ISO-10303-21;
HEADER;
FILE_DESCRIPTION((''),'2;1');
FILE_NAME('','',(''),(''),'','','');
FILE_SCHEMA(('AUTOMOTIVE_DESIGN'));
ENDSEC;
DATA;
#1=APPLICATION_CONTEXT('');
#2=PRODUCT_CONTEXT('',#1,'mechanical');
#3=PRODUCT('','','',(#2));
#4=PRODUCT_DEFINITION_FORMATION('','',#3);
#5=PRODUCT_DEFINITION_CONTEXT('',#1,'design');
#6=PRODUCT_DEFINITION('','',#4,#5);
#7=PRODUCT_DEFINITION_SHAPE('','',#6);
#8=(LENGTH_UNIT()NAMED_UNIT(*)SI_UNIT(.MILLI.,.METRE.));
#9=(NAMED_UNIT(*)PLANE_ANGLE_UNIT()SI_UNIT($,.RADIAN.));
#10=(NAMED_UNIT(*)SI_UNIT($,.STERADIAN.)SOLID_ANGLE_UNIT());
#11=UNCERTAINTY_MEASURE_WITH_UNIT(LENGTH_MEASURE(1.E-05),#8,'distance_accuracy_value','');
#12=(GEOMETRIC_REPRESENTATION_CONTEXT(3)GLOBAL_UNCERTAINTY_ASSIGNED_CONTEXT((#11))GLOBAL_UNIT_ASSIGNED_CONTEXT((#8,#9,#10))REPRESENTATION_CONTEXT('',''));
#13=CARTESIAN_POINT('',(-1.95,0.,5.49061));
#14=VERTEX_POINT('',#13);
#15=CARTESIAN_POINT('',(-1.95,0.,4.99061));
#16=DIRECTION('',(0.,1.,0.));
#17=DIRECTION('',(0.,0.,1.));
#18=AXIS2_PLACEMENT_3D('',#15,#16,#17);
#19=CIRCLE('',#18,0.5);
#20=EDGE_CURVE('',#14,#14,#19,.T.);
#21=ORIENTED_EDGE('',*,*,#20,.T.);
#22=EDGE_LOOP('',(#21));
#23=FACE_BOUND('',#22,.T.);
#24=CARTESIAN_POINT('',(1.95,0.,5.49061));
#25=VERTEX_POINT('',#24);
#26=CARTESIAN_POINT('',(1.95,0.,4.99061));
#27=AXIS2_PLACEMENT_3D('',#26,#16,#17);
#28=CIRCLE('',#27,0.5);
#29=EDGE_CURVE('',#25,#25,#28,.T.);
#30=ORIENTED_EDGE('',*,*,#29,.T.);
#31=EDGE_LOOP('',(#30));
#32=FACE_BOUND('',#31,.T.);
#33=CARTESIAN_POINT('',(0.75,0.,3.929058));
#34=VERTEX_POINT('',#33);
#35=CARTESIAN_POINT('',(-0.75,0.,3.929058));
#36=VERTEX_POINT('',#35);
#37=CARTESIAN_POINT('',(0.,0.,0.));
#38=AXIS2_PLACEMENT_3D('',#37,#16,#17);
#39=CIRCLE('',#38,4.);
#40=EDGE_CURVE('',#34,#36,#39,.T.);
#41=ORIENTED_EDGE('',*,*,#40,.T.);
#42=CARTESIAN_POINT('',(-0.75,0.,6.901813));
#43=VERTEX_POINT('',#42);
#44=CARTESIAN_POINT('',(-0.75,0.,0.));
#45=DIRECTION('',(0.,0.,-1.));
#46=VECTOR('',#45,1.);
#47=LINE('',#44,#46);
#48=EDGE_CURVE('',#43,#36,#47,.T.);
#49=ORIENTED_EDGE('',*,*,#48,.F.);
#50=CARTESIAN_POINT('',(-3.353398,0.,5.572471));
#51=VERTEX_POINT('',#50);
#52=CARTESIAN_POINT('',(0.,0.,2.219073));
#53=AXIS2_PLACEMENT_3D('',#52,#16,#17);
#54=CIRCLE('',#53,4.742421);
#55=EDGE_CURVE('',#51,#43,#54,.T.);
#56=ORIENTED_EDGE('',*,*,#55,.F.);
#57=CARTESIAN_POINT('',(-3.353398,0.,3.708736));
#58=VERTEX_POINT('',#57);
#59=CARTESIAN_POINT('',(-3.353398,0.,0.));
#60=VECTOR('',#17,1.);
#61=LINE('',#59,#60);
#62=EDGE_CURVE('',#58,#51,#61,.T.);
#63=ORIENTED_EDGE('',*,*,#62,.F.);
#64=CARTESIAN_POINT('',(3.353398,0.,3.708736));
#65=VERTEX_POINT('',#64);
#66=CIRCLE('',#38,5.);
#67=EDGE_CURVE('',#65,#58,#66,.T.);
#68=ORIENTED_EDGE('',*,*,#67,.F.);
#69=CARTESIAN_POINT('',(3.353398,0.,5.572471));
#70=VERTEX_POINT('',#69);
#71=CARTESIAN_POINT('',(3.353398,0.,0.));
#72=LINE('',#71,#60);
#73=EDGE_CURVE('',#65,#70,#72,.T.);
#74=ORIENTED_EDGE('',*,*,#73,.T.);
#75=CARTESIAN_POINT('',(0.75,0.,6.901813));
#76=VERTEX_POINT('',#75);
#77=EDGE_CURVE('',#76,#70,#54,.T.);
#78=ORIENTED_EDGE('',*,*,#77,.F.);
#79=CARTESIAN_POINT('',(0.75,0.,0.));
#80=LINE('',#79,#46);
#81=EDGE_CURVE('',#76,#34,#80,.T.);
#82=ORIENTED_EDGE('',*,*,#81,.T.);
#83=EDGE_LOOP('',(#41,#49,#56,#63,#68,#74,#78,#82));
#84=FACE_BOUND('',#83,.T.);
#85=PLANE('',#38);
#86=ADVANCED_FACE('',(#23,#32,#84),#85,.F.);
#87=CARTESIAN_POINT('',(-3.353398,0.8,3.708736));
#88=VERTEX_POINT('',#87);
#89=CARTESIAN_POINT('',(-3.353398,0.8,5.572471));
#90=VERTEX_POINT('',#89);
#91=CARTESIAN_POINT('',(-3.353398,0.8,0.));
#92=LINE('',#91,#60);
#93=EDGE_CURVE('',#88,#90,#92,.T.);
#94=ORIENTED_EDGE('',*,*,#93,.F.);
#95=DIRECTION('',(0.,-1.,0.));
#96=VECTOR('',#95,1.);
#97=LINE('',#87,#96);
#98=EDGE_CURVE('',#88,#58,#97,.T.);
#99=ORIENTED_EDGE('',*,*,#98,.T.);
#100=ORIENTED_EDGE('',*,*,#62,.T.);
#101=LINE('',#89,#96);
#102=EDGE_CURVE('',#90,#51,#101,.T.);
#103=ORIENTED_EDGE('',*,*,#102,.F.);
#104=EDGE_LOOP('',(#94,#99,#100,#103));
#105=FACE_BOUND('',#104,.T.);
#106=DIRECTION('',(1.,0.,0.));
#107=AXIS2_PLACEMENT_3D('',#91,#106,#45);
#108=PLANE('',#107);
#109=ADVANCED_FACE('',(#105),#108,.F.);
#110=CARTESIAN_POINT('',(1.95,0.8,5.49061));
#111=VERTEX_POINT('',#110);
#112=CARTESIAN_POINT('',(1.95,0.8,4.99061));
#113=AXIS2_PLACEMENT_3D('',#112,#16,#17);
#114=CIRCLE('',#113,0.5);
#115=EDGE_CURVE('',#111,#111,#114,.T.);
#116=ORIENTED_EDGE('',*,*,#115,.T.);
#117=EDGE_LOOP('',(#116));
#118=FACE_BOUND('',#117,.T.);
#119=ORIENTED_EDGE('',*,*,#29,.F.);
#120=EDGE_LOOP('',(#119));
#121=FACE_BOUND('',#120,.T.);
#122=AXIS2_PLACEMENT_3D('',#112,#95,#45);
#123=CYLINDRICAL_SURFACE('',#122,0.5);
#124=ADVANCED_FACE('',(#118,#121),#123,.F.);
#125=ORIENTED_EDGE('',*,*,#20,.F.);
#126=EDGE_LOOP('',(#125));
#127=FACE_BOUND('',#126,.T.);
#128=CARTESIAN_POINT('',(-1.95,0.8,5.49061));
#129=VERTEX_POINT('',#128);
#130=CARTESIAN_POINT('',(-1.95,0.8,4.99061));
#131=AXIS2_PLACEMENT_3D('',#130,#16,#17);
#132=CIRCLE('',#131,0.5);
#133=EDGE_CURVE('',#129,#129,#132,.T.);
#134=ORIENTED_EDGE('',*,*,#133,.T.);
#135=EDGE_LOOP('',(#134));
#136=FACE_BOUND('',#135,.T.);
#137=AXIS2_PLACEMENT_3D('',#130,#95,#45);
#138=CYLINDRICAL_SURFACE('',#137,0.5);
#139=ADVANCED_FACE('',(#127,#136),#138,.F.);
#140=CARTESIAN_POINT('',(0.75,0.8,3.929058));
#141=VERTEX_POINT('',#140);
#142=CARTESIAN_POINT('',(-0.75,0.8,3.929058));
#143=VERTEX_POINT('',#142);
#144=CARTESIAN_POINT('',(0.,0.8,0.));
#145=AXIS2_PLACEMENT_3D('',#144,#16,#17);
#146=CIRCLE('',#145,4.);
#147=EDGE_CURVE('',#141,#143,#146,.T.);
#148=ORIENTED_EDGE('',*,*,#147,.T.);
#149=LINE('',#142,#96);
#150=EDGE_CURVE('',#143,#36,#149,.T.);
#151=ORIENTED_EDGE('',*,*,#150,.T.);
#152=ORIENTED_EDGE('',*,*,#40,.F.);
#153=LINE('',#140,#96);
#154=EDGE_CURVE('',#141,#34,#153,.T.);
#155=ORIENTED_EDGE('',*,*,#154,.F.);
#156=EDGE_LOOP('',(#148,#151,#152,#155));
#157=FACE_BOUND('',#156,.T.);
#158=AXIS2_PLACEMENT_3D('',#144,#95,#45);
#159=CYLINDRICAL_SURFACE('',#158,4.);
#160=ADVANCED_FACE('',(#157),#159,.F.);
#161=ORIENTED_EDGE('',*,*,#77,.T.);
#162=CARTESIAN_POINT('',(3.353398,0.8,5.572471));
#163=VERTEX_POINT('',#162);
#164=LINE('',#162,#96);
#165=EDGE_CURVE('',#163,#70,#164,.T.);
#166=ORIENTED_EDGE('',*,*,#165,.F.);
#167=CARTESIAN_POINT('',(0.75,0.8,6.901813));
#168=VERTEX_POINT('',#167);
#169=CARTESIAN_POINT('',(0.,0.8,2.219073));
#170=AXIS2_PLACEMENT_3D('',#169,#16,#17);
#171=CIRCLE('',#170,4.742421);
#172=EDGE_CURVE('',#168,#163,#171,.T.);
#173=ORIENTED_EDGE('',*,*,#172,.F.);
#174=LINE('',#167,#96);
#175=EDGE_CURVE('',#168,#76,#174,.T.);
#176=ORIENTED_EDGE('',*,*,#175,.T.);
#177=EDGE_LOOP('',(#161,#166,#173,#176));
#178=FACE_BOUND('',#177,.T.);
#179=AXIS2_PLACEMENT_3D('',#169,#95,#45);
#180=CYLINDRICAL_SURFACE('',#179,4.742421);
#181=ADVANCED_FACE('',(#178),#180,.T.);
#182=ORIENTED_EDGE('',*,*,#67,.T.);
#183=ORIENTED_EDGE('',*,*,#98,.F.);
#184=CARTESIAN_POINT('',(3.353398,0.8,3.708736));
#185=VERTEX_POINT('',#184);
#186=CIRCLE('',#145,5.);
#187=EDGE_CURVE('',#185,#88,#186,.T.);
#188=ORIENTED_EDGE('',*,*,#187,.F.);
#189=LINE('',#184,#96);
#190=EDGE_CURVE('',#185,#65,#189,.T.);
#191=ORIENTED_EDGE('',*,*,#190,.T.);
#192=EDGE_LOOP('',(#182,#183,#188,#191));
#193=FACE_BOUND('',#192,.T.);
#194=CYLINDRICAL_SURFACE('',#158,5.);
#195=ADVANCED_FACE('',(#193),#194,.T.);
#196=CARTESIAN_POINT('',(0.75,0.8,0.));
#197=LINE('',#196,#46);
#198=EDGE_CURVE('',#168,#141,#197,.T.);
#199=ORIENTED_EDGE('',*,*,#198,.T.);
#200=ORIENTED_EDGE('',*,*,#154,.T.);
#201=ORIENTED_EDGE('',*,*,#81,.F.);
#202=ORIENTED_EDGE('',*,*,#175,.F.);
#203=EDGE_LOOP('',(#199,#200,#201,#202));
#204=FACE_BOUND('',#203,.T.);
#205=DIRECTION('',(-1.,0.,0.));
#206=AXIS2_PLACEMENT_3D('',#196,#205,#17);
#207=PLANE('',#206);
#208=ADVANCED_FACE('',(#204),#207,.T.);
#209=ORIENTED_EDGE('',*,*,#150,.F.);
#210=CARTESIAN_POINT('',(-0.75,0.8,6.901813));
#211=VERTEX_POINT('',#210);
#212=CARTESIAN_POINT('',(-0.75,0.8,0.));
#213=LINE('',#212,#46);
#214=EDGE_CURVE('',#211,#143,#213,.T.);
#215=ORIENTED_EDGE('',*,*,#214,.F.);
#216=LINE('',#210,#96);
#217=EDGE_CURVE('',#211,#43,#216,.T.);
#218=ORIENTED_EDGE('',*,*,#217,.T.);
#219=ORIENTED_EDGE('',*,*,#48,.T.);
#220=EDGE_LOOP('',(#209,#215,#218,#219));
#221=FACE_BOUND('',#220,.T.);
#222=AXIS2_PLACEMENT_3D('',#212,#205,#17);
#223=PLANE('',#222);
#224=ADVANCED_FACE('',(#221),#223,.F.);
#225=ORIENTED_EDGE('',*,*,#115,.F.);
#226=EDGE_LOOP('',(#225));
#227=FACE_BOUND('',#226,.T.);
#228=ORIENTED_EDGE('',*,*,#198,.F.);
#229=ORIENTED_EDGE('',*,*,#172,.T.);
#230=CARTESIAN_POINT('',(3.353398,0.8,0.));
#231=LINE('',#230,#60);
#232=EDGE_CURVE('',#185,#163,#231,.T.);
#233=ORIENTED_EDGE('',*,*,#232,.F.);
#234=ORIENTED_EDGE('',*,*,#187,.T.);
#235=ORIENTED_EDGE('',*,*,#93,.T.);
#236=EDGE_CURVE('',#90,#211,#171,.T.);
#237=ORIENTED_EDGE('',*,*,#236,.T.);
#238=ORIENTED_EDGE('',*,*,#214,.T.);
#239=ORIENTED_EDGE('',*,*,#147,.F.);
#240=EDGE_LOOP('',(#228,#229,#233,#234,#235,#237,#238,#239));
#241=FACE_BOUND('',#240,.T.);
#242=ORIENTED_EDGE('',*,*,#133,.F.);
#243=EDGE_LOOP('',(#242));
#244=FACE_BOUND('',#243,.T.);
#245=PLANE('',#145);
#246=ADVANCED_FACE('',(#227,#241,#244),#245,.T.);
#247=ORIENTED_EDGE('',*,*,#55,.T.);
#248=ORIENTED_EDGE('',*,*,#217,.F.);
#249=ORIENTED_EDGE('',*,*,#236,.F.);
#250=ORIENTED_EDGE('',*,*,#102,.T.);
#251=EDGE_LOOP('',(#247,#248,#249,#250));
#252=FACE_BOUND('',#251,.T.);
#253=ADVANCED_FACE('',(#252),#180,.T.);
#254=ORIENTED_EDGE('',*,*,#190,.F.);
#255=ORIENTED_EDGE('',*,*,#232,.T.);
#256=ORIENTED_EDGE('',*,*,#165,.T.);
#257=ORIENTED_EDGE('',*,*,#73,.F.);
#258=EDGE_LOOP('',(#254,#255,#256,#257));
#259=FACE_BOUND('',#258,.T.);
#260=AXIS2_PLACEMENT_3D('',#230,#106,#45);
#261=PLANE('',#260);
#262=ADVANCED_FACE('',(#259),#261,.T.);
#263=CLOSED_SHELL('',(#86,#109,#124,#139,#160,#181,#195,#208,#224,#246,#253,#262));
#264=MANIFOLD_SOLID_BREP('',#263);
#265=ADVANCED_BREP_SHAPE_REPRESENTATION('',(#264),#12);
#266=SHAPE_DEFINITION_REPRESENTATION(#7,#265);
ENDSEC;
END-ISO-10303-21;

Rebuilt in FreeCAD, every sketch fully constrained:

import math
import FreeCAD as App
import Part
import Sketcher

doc = App.newDocument("Part")
body = doc.addObject("PartDesign::Body", "Body")

sketch1 = doc.addObject("Sketcher::SketchObject", "Sketch")
body.addObject(sketch1)
sketch1.AttachmentSupport = (doc.XZ_Plane, [""])
sketch1.MapMode = "FlatFace"
sketch1.addGeometry(Part.LineSegment(App.Vector(-3.4, 3.7, 0), App.Vector(-3.4, 5.6, 0)), False)
sketch1.addGeometry(Part.ArcOfCircle(Part.Circle(App.Vector(0, 2.2, 0), App.Vector(0, 0, 1), 4.7), math.radians(99), math.radians(135)), False)
sketch1.addGeometry(Part.LineSegment(App.Vector(-0.8, 6.9, 0), App.Vector(-0.8, 3.9, 0)), False)
sketch1.addGeometry(Part.ArcOfCircle(Part.Circle(App.Vector(0, 0, 0), App.Vector(0, 0, 1), 4), math.radians(101), math.radians(439)), False)
sketch1.addGeometry(Part.LineSegment(App.Vector(0.8, 3.9, 0), App.Vector(0.8, 6.9, 0)), False)
sketch1.addGeometry(Part.ArcOfCircle(Part.Circle(App.Vector(0, 2.2, 0), App.Vector(0, 0, 1), 4.7), math.radians(45), math.radians(81)), False)
sketch1.addGeometry(Part.LineSegment(App.Vector(3.4, 5.6, 0), App.Vector(3.4, 3.7, 0)), False)
sketch1.addGeometry(Part.ArcOfCircle(Part.Circle(App.Vector(0, 0, 0), App.Vector(0, 0, 1), 5), math.radians(132), math.radians(408)), False)
sketch1.addGeometry(Part.Circle(App.Vector(-1.9, 5, 0), App.Vector(0, 0, 1), 0.5), False)
sketch1.addGeometry(Part.Circle(App.Vector(1.9, 5, 0), App.Vector(0, 0, 1), 0.5), False)
sketch1.addConstraint(Sketcher.Constraint("Coincident", 0, 2, 1, 2))
sketch1.addConstraint(Sketcher.Constraint("Coincident", 1, 1, 2, 1))
sketch1.addConstraint(Sketcher.Constraint("Coincident", 2, 2, 3, 1))
sketch1.addConstraint(Sketcher.Constraint("Coincident", 3, 2, 4, 1))
sketch1.addConstraint(Sketcher.Constraint("Coincident", 4, 2, 5, 2))
sketch1.addConstraint(Sketcher.Constraint("Coincident", 5, 1, 6, 1))
sketch1.addConstraint(Sketcher.Constraint("Coincident", 6, 2, 7, 2))
sketch1.addConstraint(Sketcher.Constraint("Coincident", 7, 1, 0, 1))
sketch1.addConstraint(Sketcher.Constraint("Vertical", 0))
sketch1.addConstraint(Sketcher.Constraint("Vertical", 2))
sketch1.addConstraint(Sketcher.Constraint("Vertical", 4))
sketch1.addConstraint(Sketcher.Constraint("Vertical", 6))
sketch1.addConstraint(Sketcher.Constraint("Coincident", 3, 3, -1, 1))
sketch1.addConstraint(Sketcher.Constraint("Coincident", 7, 3, -1, 1))
sketch1.addConstraint(Sketcher.Constraint("Coincident", 5, 3, 1, 3))
sketch1.addConstraint(Sketcher.Constraint("Equal", 1, 5))
sketch1.addConstraint(Sketcher.Constraint("Equal", 8, 9))
sketch1.addConstraint(Sketcher.Constraint("Symmetric", 8, 3, 9, 3, -2))
sketch1.addConstraint(Sketcher.Constraint("Symmetric", 1, 1, 4, 2, -2))
sketch1.addConstraint(Sketcher.Constraint("Horizontal", 0, 2, 5, 1))
sketch1.addConstraint(Sketcher.Constraint("Diameter", 8, 1.0))
sketch1.addConstraint(Sketcher.Constraint("Radius", 3, 4.0))
sketch1.addConstraint(Sketcher.Constraint("Radius", 7, 5.0))
sketch1.addConstraint(Sketcher.Constraint("DistanceX", 8, 3, 9, 3, 3.9))
sketch1.addConstraint(Sketcher.Constraint("DistanceX", 8, 3, 1, 1, 1.2))
sketch1.addConstraint(Sketcher.Constraint("Radius", 1, 4.742421))
sketch1.addConstraint(Sketcher.Constraint("DistanceX", 0, 2, -1, 1, 3.353398))
sketch1.addConstraint(Sketcher.Constraint("DistanceY", 0, 1, 0, 2, 1.863735))
sketch1.addConstraint(Sketcher.Constraint("DistanceY", -1, 1, 8, 3, 4.99061))
pad1 = doc.addObject("PartDesign::Pad", "Pad")
body.addObject(pad1)
pad1.Profile = sketch1
pad1.Length = 0.8
pad1.Reversed = True

doc.recompute()
